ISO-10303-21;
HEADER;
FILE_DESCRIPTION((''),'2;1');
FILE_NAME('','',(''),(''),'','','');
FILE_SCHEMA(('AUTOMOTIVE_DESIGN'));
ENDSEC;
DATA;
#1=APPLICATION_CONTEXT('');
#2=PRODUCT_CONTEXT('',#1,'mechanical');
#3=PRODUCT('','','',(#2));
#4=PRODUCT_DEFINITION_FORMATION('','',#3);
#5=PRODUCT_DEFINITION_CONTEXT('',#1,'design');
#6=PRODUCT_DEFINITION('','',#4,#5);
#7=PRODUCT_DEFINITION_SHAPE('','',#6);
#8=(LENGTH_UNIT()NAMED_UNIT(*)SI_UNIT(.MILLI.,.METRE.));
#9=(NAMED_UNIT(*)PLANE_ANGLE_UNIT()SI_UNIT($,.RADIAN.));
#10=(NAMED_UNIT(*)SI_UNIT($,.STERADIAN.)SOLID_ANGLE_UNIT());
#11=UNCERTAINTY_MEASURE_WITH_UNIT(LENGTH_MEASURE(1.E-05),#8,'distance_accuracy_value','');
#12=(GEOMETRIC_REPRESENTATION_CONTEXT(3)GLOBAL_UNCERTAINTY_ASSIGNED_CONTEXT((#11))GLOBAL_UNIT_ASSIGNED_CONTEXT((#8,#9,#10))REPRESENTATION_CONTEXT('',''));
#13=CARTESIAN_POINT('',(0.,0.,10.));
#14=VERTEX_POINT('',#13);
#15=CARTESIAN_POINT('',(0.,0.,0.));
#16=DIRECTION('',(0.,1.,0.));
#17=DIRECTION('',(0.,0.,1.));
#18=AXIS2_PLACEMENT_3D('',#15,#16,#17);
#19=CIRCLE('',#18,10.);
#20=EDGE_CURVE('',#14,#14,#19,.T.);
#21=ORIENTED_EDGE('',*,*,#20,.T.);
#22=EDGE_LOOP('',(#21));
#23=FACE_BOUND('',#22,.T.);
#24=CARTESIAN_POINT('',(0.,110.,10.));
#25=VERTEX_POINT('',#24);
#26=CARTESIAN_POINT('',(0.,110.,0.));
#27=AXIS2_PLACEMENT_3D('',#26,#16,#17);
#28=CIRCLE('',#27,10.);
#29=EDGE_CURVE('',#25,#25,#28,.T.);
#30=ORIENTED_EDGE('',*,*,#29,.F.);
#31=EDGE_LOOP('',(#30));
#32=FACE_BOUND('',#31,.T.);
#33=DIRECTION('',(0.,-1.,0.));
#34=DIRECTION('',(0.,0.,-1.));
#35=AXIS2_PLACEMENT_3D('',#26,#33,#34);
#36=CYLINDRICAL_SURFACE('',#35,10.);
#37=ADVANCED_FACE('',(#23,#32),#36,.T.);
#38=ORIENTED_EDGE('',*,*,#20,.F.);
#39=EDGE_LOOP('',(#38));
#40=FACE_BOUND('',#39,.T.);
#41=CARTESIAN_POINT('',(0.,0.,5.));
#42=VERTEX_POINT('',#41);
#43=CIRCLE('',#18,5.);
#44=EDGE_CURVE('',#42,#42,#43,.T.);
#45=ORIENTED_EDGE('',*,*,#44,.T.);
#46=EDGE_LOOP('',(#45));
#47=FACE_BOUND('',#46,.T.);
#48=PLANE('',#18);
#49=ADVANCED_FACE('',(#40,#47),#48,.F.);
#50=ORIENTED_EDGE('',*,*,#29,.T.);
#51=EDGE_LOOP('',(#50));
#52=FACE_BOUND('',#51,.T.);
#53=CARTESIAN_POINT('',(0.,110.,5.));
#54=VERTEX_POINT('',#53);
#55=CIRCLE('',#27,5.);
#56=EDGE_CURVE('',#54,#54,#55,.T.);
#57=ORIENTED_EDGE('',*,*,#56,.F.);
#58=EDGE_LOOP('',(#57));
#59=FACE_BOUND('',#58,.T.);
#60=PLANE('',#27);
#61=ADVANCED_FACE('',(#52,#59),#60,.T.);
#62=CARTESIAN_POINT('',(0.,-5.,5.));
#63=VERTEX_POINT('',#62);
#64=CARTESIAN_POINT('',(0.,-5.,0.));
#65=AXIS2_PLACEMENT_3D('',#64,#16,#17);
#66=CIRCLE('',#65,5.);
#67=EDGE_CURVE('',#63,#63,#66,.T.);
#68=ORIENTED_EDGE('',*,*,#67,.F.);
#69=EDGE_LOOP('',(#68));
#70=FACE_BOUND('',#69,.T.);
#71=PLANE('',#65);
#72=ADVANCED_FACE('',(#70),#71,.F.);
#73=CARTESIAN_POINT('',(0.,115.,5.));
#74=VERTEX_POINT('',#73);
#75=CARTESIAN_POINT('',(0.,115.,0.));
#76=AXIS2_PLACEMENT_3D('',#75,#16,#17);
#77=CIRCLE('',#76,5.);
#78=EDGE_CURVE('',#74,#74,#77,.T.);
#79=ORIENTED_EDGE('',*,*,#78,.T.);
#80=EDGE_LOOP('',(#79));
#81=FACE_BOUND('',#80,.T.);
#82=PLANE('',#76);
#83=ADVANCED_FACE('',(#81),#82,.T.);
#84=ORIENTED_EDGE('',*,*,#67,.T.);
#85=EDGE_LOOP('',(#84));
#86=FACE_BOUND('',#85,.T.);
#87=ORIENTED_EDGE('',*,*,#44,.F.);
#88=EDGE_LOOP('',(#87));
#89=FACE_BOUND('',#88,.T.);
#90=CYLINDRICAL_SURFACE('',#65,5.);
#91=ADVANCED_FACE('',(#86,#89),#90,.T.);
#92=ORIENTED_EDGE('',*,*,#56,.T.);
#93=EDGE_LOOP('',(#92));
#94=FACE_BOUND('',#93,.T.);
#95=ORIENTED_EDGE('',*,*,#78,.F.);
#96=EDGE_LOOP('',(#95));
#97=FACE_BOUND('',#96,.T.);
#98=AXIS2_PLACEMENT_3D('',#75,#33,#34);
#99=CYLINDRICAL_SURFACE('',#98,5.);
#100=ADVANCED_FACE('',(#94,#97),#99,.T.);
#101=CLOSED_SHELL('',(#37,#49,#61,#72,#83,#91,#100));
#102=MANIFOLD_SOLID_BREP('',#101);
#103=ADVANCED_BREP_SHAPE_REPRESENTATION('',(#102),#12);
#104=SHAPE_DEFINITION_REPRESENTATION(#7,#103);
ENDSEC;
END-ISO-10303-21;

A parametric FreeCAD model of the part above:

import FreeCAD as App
import Part
import Sketcher

V = App.Vector

doc = App.newDocument("Part")
body = doc.addObject("PartDesign::Body", "Body")

sketch1 = body.newObject("Sketcher::SketchObject", "Sketch")
sketch1.AttachmentSupport = (doc.getObject("XZ_Plane"), [""])
sketch1.MapMode = "FlatFace"
sketch1.addGeometry(Part.Circle(V(0, 0, 0), V(0, 0, 1), 10), False)
sketch1.addGeometry(Part.Circle(V(0, 0, 0), V(0, 0, 1), 5), False)
sketch1.addConstraint(Sketcher.Constraint("Coincident", 0, 3, -1, 1))
sketch1.addConstraint(Sketcher.Constraint("Coincident", 1, 3, -1, 1))
sketch1.addConstraint(Sketcher.Constraint("Diameter", 0, 20.0))
sketch1.addConstraint(Sketcher.Constraint("Diameter", 1, 10.0))
pad1 = body.newObject("PartDesign::Pad", "Pad")
pad1.Profile = sketch1
pad1.Length = 110
pad1.Reversed = True

sketch2 = body.newObject("Sketcher::SketchObject", "Sketch001")
sketch2.AttachmentSupport = (doc.getObject("XZ_Plane"), [""])
sketch2.MapMode = "FlatFace"
sketch2.addGeometry(Part.Circle(V(0, 0, 0), V(0, 0, 1), 5), False)
sketch2.addConstraint(Sketcher.Constraint("Coincident", 0, 3, -1, 1))
sketch2.addConstraint(Sketcher.Constraint("Diameter", 0, 10.0))
pad2 = body.newObject("PartDesign::Pad", "Pad001")
pad2.Profile = sketch2
pad2.Length = 115
pad2.Reversed = True

sketch3 = body.newObject("Sketcher::SketchObject", "Sketch002")
sketch3.AttachmentSupport = (doc.getObject("XZ_Plane"), [""])
sketch3.MapMode = "FlatFace"
sketch3.AttachmentOffset = App.Placement(V(0, 0, 5), App.Rotation())
sketch3.addGeometry(Part.Circle(V(0, 0, 0), V(0, 0, 1), 5), False)
sketch3.addConstraint(Sketcher.Constraint("Coincident", 0, 3, -1, 1))
sketch3.addConstraint(Sketcher.Constraint("Diameter", 0, 10.0))
pad3 = body.newObject("PartDesign::Pad", "Pad002")
pad3.Profile = sketch3
pad3.Length = 5
pad3.Reversed = True

doc.recompute()
